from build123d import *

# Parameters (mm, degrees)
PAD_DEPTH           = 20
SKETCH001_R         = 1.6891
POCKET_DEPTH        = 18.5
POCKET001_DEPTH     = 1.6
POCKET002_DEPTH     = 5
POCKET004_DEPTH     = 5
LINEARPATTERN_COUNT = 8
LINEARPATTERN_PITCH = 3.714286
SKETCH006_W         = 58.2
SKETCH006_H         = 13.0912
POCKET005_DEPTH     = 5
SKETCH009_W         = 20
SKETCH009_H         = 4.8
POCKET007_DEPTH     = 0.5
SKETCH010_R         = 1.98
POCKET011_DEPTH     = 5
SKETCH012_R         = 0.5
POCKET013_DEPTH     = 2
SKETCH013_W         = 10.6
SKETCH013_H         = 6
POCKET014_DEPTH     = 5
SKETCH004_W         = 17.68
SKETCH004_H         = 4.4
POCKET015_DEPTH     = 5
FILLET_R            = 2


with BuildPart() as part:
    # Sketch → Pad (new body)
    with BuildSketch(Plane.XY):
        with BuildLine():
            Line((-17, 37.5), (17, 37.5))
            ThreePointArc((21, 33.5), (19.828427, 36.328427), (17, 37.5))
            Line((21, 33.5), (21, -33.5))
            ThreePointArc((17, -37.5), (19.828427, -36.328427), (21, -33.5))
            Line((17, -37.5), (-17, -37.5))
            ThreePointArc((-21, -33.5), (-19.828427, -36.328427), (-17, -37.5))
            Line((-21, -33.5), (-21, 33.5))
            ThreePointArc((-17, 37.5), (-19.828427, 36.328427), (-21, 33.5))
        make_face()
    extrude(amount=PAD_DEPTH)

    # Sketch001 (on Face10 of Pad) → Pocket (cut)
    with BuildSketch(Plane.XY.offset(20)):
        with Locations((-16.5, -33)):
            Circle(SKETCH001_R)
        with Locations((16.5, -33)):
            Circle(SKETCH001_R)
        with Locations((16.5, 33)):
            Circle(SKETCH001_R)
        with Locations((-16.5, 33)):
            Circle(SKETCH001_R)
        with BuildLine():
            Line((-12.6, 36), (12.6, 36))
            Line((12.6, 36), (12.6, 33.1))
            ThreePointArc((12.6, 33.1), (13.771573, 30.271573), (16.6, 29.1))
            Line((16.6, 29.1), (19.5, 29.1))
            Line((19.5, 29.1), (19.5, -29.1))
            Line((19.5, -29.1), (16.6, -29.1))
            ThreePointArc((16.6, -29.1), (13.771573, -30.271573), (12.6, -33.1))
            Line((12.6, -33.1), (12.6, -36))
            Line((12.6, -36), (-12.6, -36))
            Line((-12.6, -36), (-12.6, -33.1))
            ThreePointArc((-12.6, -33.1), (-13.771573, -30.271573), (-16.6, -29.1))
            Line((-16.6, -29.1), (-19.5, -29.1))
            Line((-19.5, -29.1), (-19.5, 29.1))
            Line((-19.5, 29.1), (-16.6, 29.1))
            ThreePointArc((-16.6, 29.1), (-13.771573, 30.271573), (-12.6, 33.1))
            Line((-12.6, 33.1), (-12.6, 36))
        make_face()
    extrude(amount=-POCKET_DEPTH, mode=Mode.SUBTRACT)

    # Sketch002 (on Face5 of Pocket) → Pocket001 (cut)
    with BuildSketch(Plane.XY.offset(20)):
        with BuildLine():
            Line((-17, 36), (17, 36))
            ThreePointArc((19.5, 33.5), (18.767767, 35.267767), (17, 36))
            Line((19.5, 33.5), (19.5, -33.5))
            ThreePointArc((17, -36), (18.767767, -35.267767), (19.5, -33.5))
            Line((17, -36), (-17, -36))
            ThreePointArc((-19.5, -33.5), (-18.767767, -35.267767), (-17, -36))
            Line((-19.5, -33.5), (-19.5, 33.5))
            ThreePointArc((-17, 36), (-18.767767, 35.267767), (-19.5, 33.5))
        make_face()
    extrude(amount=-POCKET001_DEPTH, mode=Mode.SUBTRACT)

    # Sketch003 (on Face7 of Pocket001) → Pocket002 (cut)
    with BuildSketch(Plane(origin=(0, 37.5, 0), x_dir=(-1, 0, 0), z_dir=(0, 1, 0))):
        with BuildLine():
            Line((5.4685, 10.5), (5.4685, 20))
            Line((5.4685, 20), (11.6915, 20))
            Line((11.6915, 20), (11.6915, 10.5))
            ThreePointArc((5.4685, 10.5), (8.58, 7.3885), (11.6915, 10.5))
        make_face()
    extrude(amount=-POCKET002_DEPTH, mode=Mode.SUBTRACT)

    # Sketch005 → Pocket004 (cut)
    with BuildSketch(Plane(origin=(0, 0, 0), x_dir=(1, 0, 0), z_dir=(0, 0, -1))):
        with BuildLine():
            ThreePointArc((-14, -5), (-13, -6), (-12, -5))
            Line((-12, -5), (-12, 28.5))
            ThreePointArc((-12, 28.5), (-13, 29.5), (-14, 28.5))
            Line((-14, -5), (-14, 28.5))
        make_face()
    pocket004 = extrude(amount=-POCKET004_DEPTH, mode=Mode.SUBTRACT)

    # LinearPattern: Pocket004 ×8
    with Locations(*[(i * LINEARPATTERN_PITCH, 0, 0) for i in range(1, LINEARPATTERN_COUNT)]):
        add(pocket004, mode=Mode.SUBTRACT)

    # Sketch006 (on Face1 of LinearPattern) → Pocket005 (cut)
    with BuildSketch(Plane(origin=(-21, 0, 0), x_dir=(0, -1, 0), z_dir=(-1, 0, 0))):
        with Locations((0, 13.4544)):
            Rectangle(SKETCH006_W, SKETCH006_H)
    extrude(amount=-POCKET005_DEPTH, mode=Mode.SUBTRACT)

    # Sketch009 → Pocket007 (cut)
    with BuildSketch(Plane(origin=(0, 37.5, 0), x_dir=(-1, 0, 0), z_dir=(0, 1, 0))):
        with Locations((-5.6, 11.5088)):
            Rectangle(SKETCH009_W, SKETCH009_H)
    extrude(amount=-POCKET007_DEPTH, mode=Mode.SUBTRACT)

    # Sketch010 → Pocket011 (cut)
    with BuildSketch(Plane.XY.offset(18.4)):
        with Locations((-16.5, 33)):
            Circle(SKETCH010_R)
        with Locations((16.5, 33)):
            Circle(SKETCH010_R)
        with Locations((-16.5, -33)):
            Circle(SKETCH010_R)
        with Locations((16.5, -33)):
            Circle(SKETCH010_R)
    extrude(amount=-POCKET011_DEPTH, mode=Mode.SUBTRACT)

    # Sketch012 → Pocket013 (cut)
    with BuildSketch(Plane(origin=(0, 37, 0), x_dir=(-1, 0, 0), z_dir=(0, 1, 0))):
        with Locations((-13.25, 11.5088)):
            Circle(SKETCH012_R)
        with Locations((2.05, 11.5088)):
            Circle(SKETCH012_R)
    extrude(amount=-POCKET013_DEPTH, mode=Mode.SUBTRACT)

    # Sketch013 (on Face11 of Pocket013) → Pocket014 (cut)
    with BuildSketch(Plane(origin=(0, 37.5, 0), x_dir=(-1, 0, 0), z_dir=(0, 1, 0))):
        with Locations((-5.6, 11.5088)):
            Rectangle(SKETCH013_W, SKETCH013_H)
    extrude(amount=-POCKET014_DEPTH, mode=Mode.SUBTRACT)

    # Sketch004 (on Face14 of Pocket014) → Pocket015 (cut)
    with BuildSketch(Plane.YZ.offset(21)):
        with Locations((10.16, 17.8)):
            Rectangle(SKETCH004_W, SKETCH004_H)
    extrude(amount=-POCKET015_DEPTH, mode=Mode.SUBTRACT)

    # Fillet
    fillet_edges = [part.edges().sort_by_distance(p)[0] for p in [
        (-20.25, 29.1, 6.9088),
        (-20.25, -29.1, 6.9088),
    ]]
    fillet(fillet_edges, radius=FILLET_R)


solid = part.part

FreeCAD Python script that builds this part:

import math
import FreeCAD as App
import Part
import Sketcher


def edges_at(feature, points):
    """Names of the edges that pass closest to the given points."""
    edges = feature.Shape.Edges
    near = lambda p: min(range(len(edges)), key=lambda i: edges[i].distToShape(Part.Vertex(*p))[0])
    return sorted({f"Edge{near(p) + 1}" for p in points})

doc = App.newDocument("Part")
body = doc.addObject("PartDesign::Body", "Body")

# Sketch on XY plane
sketch1 = body.newObject("Sketcher::SketchObject", "Sketch")
sketch1.AttachmentSupport = (doc.getObject("XY_Plane"), [""])
sketch1.MapMode = "FlatFace"
sketch1.addGeometry([
    Part.LineSegment(App.Vector(17, 37.5, 0), App.Vector(-17, 37.5, 0)),  # 0
    Part.ArcOfCircle(Part.Circle(App.Vector(-17, 33.5, 0), App.Vector(0, 0, 1), 4), math.radians(90.000006), math.radians(179.999994)),  # 1
    Part.LineSegment(App.Vector(-21, 33.5, 0), App.Vector(-21, -33.5, 0)),  # 2
    Part.ArcOfCircle(Part.Circle(App.Vector(-17, -33.5, 0), App.Vector(0, 0, 1), 4), math.radians(-179.999994), math.radians(-90.000006)),  # 3
    Part.LineSegment(App.Vector(-17, -37.5, 0), App.Vector(17, -37.5, 0)),  # 4
    Part.ArcOfCircle(Part.Circle(App.Vector(17, -33.5, 0), App.Vector(0, 0, 1), 4), math.radians(-89.999994), math.radians(-0.000006)),  # 5
    Part.LineSegment(App.Vector(21, -33.5, 0), App.Vector(21, 33.5, 0)),  # 6
    Part.ArcOfCircle(Part.Circle(App.Vector(17, 33.5, 0), App.Vector(0, 0, 1), 4), math.radians(0.000006), math.radians(89.999994)),  # 7
], False)
sketch1.addConstraint([
    Sketcher.Constraint("Tangent", 0, 2, 1, 1),
    Sketcher.Constraint("Tangent", 1, 2, 2, 1),
    Sketcher.Constraint("Tangent", 2, 2, 3, 1),
    Sketcher.Constraint("Tangent", 3, 2, 4, 1),
    Sketcher.Constraint("Tangent", 4, 2, 5, 1),
    Sketcher.Constraint("Tangent", 5, 2, 6, 1),
    Sketcher.Constraint("Tangent", 6, 2, 7, 1),
    Sketcher.Constraint("Tangent", 7, 2, 0, 1),
    Sketcher.Constraint("Horizontal", 0),
    Sketcher.Constraint("Vertical", 2),
    Sketcher.Constraint("Horizontal", 4),
    Sketcher.Constraint("Vertical", 6),
    Sketcher.Constraint("Equal", 1, 3),
    Sketcher.Constraint("Equal", 3, 5),
    Sketcher.Constraint("Equal", 5, 7),
    Sketcher.Constraint("Symmetric", 1, 3, 5, 3, -1, 1),
    Sketcher.Constraint("Radius", 1, 4.0),
    Sketcher.Constraint("DistanceX", 0, 2, 0, 1, 34.0),
    Sketcher.Constraint("DistanceY", 2, 2, 2, 1, 67.0),
])
pad1 = body.newObject("PartDesign::Pad", "Pad")
pad1.Profile = sketch1
pad1.Length = 20

# Sketch on XY plane
sketch2 = body.newObject("Sketcher::SketchObject", "Sketch001")
sketch2.AttachmentSupport = (doc.getObject("XY_Plane"), [""])
sketch2.MapMode = "FlatFace"
sketch2.AttachmentOffset = App.Placement(App.Vector(0, 0, 20), App.Rotation())
sketch2.addGeometry([
    Part.Circle(App.Vector(-16.5, -33, 0), App.Vector(0, 0, 1), 1.6891),  # 0
    Part.Circle(App.Vector(16.5, -33, 0), App.Vector(0, 0, 1), 1.6891),  # 1
    Part.Circle(App.Vector(16.5, 33, 0), App.Vector(0, 0, 1), 1.6891),  # 2
    Part.Circle(App.Vector(-16.5, 33, 0), App.Vector(0, 0, 1), 1.6891),  # 3
    Part.LineSegment(App.Vector(12.6, 36, 0), App.Vector(-12.6, 36, 0)),  # 4
    Part.LineSegment(App.Vector(-12.6, 36, 0), App.Vector(-12.6, 33.1, 0)),  # 5
    Part.ArcOfCircle(Part.Circle(App.Vector(-16.6, 33.1, 0), App.Vector(0, 0, 1), 4), math.radians(-89.999994), math.radians(-0.000006)),  # 6
    Part.LineSegment(App.Vector(-16.6, 29.1, 0), App.Vector(-19.5, 29.1, 0)),  # 7
    Part.LineSegment(App.Vector(-19.5, 29.1, 0), App.Vector(-19.5, -29.1, 0)),  # 8
    Part.LineSegment(App.Vector(-19.5, -29.1, 0), App.Vector(-16.6, -29.1, 0)),  # 9
    Part.ArcOfCircle(Part.Circle(App.Vector(-16.6, -33.1, 0), App.Vector(0, 0, 1), 4), math.radians(0.000006), math.radians(89.999994)),  # 10
    Part.LineSegment(App.Vector(-12.6, -33.1, 0), App.Vector(-12.6, -36, 0)),  # 11
    Part.LineSegment(App.Vector(-12.6, -36, 0), App.Vector(12.6, -36, 0)),  # 12
    Part.LineSegment(App.Vector(12.6, -36, 0), App.Vector(12.6, -33.1, 0)),  # 13
    Part.ArcOfCircle(Part.Circle(App.Vector(16.6, -33.1, 0), App.Vector(0, 0, 1), 4), math.radians(90.000006), math.radians(179.999994)),  # 14
    Part.LineSegment(App.Vector(16.6, -29.1, 0), App.Vector(19.5, -29.1, 0)),  # 15
    Part.LineSegment(App.Vector(19.5, -29.1, 0), App.Vector(19.5, 29.1, 0)),  # 16
    Part.LineSegment(App.Vector(19.5, 29.1, 0), App.Vector(16.6, 29.1, 0)),  # 17
    Part.ArcOfCircle(Part.Circle(App.Vector(16.6, 33.1, 0), App.Vector(0, 0, 1), 4), math.radians(-179.999994), math.radians(-90.000006)),  # 18
    Part.LineSegment(App.Vector(12.6, 33.1, 0), App.Vector(12.6, 36, 0)),  # 19
], False)
sketch2.addConstraint([
    Sketcher.Constraint("Coincident", 4, 2, 5, 1),
    Sketcher.Constraint("Tangent", 5, 2, 6, 2),
    Sketcher.Constraint("Tangent", 6, 1, 7, 1),
    Sketcher.Constraint("Coincident", 7, 2, 8, 1),
    Sketcher.Constraint("Coincident", 8, 2, 9, 1),
    Sketcher.Constraint("Tangent", 9, 2, 10, 2),
    Sketcher.Constraint("Tangent", 10, 1, 11, 1),
    Sketcher.Constraint("Coincident", 11, 2, 12, 1),
    Sketcher.Constraint("Coincident", 12, 2, 13, 1),
    Sketcher.Constraint("Tangent", 13, 2, 14, 2),
    Sketcher.Constraint("Tangent", 14, 1, 15, 1),
    Sketcher.Constraint("Coincident", 15, 2, 16, 1),
    Sketcher.Constraint("Coincident", 16, 2, 17, 1),
    Sketcher.Constraint("Tangent", 17, 2, 18, 2),
    Sketcher.Constraint("Tangent", 18, 1, 19, 1),
    Sketcher.Constraint("Coincident", 19, 2, 4, 1),
    Sketcher.Constraint("Horizontal", 4),
    Sketcher.Constraint("Vertical", 5),
    Sketcher.Constraint("Horizontal", 7),
    Sketcher.Constraint("Vertical", 8),
    Sketcher.Constraint("Horizontal", 9),
    Sketcher.Constraint("Vertical", 11),
    Sketcher.Constraint("Horizontal", 12),
    Sketcher.Constraint("Vertical", 13),
    Sketcher.Constraint("Horizontal", 15),
    Sketcher.Constraint("Vertical", 16),
    Sketcher.Constraint("Horizontal", 17),
    Sketcher.Constraint("Vertical", 19),
    Sketcher.Constraint("Equal", 0, 1),
    Sketcher.Constraint("Equal", 1, 2),
    Sketcher.Constraint("Equal", 2, 3),
    Sketcher.Constraint("Equal", 6, 10),
    Sketcher.Constraint("Equal", 10, 14),
    Sketcher.Constraint("Equal", 14, 18),
    Sketcher.Constraint("Symmetric", 0, 3, 2, 3, -1, 1),
    Sketcher.Constraint("Symmetric", 1, 3, 3, 3, -1, 1),
    Sketcher.Constraint("Symmetric", 6, 3, 14, 3, -1, 1),
    Sketcher.Constraint("Symmetric", 10, 3, 18, 3, -1, 1),
    Sketcher.Constraint("Symmetric", 0, 3, 1, 3, -2),
    Sketcher.Constraint("Symmetric", 10, 3, 14, 3, -2),
    Sketcher.Constraint("Equal", 9, 15),
    Sketcher.Constraint("Equal", 17, 5),
    Sketcher.Constraint("Equal", 5, 11),
    Sketcher.Constraint("Radius", 6, 4.0),
    Sketcher.Constraint("DistanceX", 4, 2, 4, 1, 25.2),
    Sketcher.Constraint("DistanceX", 7, 2, 7, 1, 2.9),
    Sketcher.Constraint("DistanceY", 8, 2, 8, 1, 58.2),
    Sketcher.Constraint("DistanceY", 0, 3, -1, 1, 33.0),
    Sketcher.Constraint("DistanceX", 0, 3, 1, 3, 33.0),
    Sketcher.Constraint("Diameter", 0, 3.3782),
])
pocket1 = body.newObject("PartDesign::Pocket", "Pocket")
pocket1.Profile = sketch2
pocket1.Length = 18.5

# Sketch on XY plane
sketch3 = body.newObject("Sketcher::SketchObject", "Sketch002")
sketch3.AttachmentSupport = (doc.getObject("XY_Plane"), [""])
sketch3.MapMode = "FlatFace"
sketch3.AttachmentOffset = App.Placement(App.Vector(0, 0, 20), App.Rotation())
sketch3.addGeometry([
    Part.LineSegment(App.Vector(17, 36, 0), App.Vector(-17, 36, 0)),  # 0
    Part.ArcOfCircle(Part.Circle(App.Vector(-17, 33.5, 0), App.Vector(0, 0, 1), 2.5), math.radians(89.999996), math.radians(180.000004)),  # 1
    Part.LineSegment(App.Vector(-19.5, 33.5, 0), App.Vector(-19.5, -33.5, 0)),  # 2
    Part.ArcOfCircle(Part.Circle(App.Vector(-17, -33.5, 0), App.Vector(0, 0, 1), 2.5), math.radians(179.999996), math.radians(270.000004)),  # 3
    Part.LineSegment(App.Vector(-17, -36, 0), App.Vector(17, -36, 0)),  # 4
    Part.ArcOfCircle(Part.Circle(App.Vector(17, -33.5, 0), App.Vector(0, 0, 1), 2.5), math.radians(-90.000004), math.radians(0.000004)),  # 5
    Part.LineSegment(App.Vector(19.5, -33.5, 0), App.Vector(19.5, 33.5, 0)),  # 6
    Part.ArcOfCircle(Part.Circle(App.Vector(17, 33.5, 0), App.Vector(0, 0, 1), 2.5), math.radians(-0.000004), math.radians(90.000004)),  # 7
], False)
sketch3.addConstraint([
    Sketcher.Constraint("Tangent", 0, 2, 1, 1),
    Sketcher.Constraint("Tangent", 1, 2, 2, 1),
    Sketcher.Constraint("Tangent", 2, 2, 3, 1),
    Sketcher.Constraint("Tangent", 3, 2, 4, 1),
    Sketcher.Constraint("Tangent", 4, 2, 5, 1),
    Sketcher.Constraint("Tangent", 5, 2, 6, 1),
    Sketcher.Constraint("Tangent", 6, 2, 7, 1),
    Sketcher.Constraint("Tangent", 7, 2, 0, 1),
    Sketcher.Constraint("Horizontal", 0),
    Sketcher.Constraint("Vertical", 2),
    Sketcher.Constraint("Horizontal", 4),
    Sketcher.Constraint("Vertical", 6),
    Sketcher.Constraint("Equal", 1, 3),
    Sketcher.Constraint("Equal", 3, 5),
    Sketcher.Constraint("Equal", 5, 7),
    Sketcher.Constraint("Symmetric", 1, 3, 5, 3, -1, 1),
    Sketcher.Constraint("Radius", 1, 2.5),
    Sketcher.Constraint("DistanceX", 0, 2, 0, 1, 34.0),
    Sketcher.Constraint("DistanceY", 2, 2, 2, 1, 67.0),
])
pocket2 = body.newObject("PartDesign::Pocket", "Pocket001")
pocket2.Profile = sketch3
pocket2.Length = 1.6

# Sketch on XZ plane
sketch4 = body.newObject("Sketcher::SketchObject", "Sketch003")
sketch4.AttachmentSupport = (doc.getObject("XZ_Plane"), [""])
sketch4.MapMode = "FlatFace"
sketch4.AttachmentOffset = App.Placement(App.Vector(0, 0, -37.5), App.Rotation())
sketch4.addGeometry([
    Part.LineSegment(App.Vector(-5.4685, 20, 0), App.Vector(-5.4685, 10.5, 0)),
    Part.ArcOfCircle(Part.Circle(App.Vector(-8.58, 10.5, 0), App.Vector(0, 0, 1), 3.1115), math.radians(180), math.radians(360)),
    Part.LineSegment(App.Vector(-11.6915, 10.5, 0), App.Vector(-11.6915, 20, 0)),
    Part.LineSegment(App.Vector(-11.6915, 20, 0), App.Vector(-5.4685, 20, 0)),
], False)
sketch4.addConstraint([
    Sketcher.Constraint("Tangent", 0, 2, 1, 2),
    Sketcher.Constraint("Tangent", 1, 1, 2, 1),
    Sketcher.Constraint("Coincident", 2, 2, 3, 1),
    Sketcher.Constraint("Coincident", 3, 2, 0, 1),
    Sketcher.Constraint("Vertical", 0),
    Sketcher.Constraint("Vertical", 2),
    Sketcher.Constraint("Horizontal", 3),
    Sketcher.Constraint("DistanceY", 0, 2, 0, 1, 9.5),
    Sketcher.Constraint("DistanceY", -1, 1, 2, 2, 20.0),
    Sketcher.Constraint("Radius", 1, 3.1115),
    Sketcher.Constraint("DistanceX", 1, 3, -1, 1, 8.58),
])
pocket3 = body.newObject("PartDesign::Pocket", "Pocket002")
pocket3.Profile = sketch4
pocket3.Length = 5
pocket3.Reversed = True

# Sketch on XY plane
sketch5 = body.newObject("Sketcher::SketchObject", "Sketch004")
sketch5.AttachmentSupport = (doc.getObject("XY_Plane"), [""])
sketch5.MapMode = "FlatFace"
sketch5.addGeometry([
    Part.ArcOfCircle(Part.Circle(App.Vector(-13, 5, 0), App.Vector(0, 0, 1), 1), math.radians(0), math.radians(180)),
    Part.LineSegment(App.Vector(-12, 5, 0), App.Vector(-12, -28.5, 0)),
    Part.ArcOfCircle(Part.Circle(App.Vector(-13, -28.5, 0), App.Vector(0, 0, 1), 1), math.radians(180), math.radians(360)),
    Part.LineSegment(App.Vector(-14, -28.5, 0), App.Vector(-14, 5, 0)),
], False)
sketch5.addConstraint([
    Sketcher.Constraint("Tangent", 0, 1, 1, 1),
    Sketcher.Constraint("Tangent", 1, 2, 2, 2),
    Sketcher.Constraint("Tangent", 2, 1, 3, 1),
    Sketcher.Constraint("Tangent", 3, 2, 0, 2),
    Sketcher.Constraint("Vertical", 1),
    Sketcher.Constraint("Vertical", 3),
    Sketcher.Constraint("Radius", 0, 1.0),
    Sketcher.Constraint("DistanceY", 1, 2, 1, 1, 33.5),
    Sketcher.Constraint("DistanceX", 0, 3, -1, 1, 13.0),
    Sketcher.Constraint("DistanceY", -1, 1, 0, 3, 5.0),
])
pocket4 = body.newObject("PartDesign::Pocket", "Pocket003")
pocket4.Profile = sketch5
pocket4.Length = 5
pocket4.Reversed = True
doc.recompute()

linearpattern = body.newObject("PartDesign::LinearPattern", "LinearPattern")
linearpattern.Originals = [pocket4]
linearpattern.Direction = (doc.getObject("X_Axis"), [""])
linearpattern.Mode = "offset"
linearpattern.Offset = 3.714286
linearpattern.Occurrences = 8
body.Tip = linearpattern

# Sketch on YZ plane
sketch6 = body.newObject("Sketcher::SketchObject", "Sketch005")
sketch6.AttachmentSupport = (doc.getObject("YZ_Plane"), [""])
sketch6.MapMode = "FlatFace"
sketch6.AttachmentOffset = App.Placement(App.Vector(0, 0, -21), App.Rotation())
sketch6.addGeometry([
    Part.LineSegment(App.Vector(29.1, 20, 0), App.Vector(29.1, 6.9088, 0)),
    Part.LineSegment(App.Vector(29.1, 6.9088, 0), App.Vector(-29.1, 6.9088, 0)),
    Part.LineSegment(App.Vector(-29.1, 6.9088, 0), App.Vector(-29.1, 20, 0)),
    Part.LineSegment(App.Vector(-29.1, 20, 0), App.Vector(29.1, 20, 0)),
], False)
sketch6.addConstraint([
    Sketcher.Constraint("Coincident", 0, 2, 1, 1),
    Sketcher.Constraint("Coincident", 1, 2, 2, 1),
    Sketcher.Constraint("Coincident", 2, 2, 3, 1),
    Sketcher.Constraint("Coincident", 3, 2, 0, 1),
    Sketcher.Constraint("Vertical", 0),
    Sketcher.Constraint("Horizontal", 1),
    Sketcher.Constraint("Vertical", 2),
    Sketcher.Constraint("Horizontal", 3),
    Sketcher.Constraint("DistanceX", 1, 2, 1, 1, 58.2),
    Sketcher.Constraint("DistanceY", -1, 1, 2, 2, 20.0),
    Sketcher.Constraint("DistanceX", -1, 1, 0, 2, 29.1),
    Sketcher.Constraint("DistanceY", 0, 2, 0, 1, 13.0912),
])
pocket5 = body.newObject("PartDesign::Pocket", "Pocket004")
pocket5.Profile = sketch6
pocket5.Length = 5
pocket5.Reversed = True

# Sketch on XZ plane
sketch7 = body.newObject("Sketcher::SketchObject", "Sketch006")
sketch7.AttachmentSupport = (doc.getObject("XZ_Plane"), [""])
sketch7.MapMode = "FlatFace"
sketch7.AttachmentOffset = App.Placement(App.Vector(0, 0, -37.5), App.Rotation())
sketch7.addGeometry([
    Part.LineSegment(App.Vector(15.6, 13.9088, 0), App.Vector(15.6, 9.1088, 0)),
    Part.LineSegment(App.Vector(15.6, 9.1088, 0), App.Vector(-4.4, 9.1088, 0)),
    Part.LineSegment(App.Vector(-4.4, 9.1088, 0), App.Vector(-4.4, 13.9088, 0)),
    Part.LineSegment(App.Vector(-4.4, 13.9088, 0), App.Vector(15.6, 13.9088, 0)),
], False)
sketch7.addConstraint([
    Sketcher.Constraint("Coincident", 0, 2, 1, 1),
    Sketcher.Constraint("Coincident", 1, 2, 2, 1),
    Sketcher.Constraint("Coincident", 2, 2, 3, 1),
    Sketcher.Constraint("Coincident", 3, 2, 0, 1),
    Sketcher.Constraint("Vertical", 0),
    Sketcher.Constraint("Horizontal", 1),
    Sketcher.Constraint("Vertical", 2),
    Sketcher.Constraint("Horizontal", 3),
    Sketcher.Constraint("DistanceX", 1, 2, 1, 1, 20.0),
    Sketcher.Constraint("DistanceY", 0, 2, 0, 1, 4.8),
    Sketcher.Constraint("DistanceX", -1, 1, 0, 2, 15.6),
    Sketcher.Constraint("DistanceY", -1, 1, 0, 2, 9.1088),
])
pocket6 = body.newObject("PartDesign::Pocket", "Pocket005")
pocket6.Profile = sketch7
pocket6.Length = 0.5
pocket6.Reversed = True

# Sketch on XY plane
sketch8 = body.newObject("Sketcher::SketchObject", "Sketch007")
sketch8.AttachmentSupport = (doc.getObject("XY_Plane"), [""])
sketch8.MapMode = "FlatFace"
sketch8.AttachmentOffset = App.Placement(App.Vector(0, 0, 18.4), App.Rotation())
sketch8.addGeometry([
    Part.Circle(App.Vector(-16.5, 33, 0), App.Vector(0, 0, 1), 1.98),
    Part.Circle(App.Vector(16.5, 33, 0), App.Vector(0, 0, 1), 1.98),
    Part.Circle(App.Vector(-16.5, -33, 0), App.Vector(0, 0, 1), 1.98),
    Part.Circle(App.Vector(16.5, -33, 0), App.Vector(0, 0, 1), 1.98),
], False)
sketch8.addConstraint([
    Sketcher.Constraint("Equal", 0, 1),
    Sketcher.Constraint("Equal", 1, 2),
    Sketcher.Constraint("Equal", 2, 3),
    Sketcher.Constraint("Symmetric", 1, 3, 2, 3, -1, 1),
    Sketcher.Constraint("Symmetric", 0, 3, 3, 3, -1, 1),
    Sketcher.Constraint("Symmetric", 0, 3, 1, 3, -2),
    Sketcher.Constraint("Diameter", 0, 3.96),
    Sketcher.Constraint("DistanceY", -1, 1, 0, 3, 33.0),
    Sketcher.Constraint("DistanceX", 0, 3, 1, 3, 33.0),
])
pocket7 = body.newObject("PartDesign::Pocket", "Pocket006")
pocket7.Profile = sketch8
pocket7.Length = 5

# Sketch on XZ plane
sketch9 = body.newObject("Sketcher::SketchObject", "Sketch008")
sketch9.AttachmentSupport = (doc.getObject("XZ_Plane"), [""])
sketch9.MapMode = "FlatFace"
sketch9.AttachmentOffset = App.Placement(App.Vector(0, 0, -37), App.Rotation())
sketch9.addGeometry([
    Part.Circle(App.Vector(13.25, 11.5088, 0), App.Vector(0, 0, 1), 0.5),
    Part.Circle(App.Vector(-2.05, 11.5088, 0), App.Vector(0, 0, 1), 0.5),
], False)
sketch9.addConstraint([
    Sketcher.Constraint("Equal", 0, 1),
    Sketcher.Constraint("Horizontal", 0, 3, 1, 3),
    Sketcher.Constraint("Diameter", 0, 1.0),
    Sketcher.Constraint("DistanceX", 1, 3, 0, 3, 15.3),
    Sketcher.Constraint("DistanceX", -1, 1, 0, 3, 13.25),
    Sketcher.Constraint("DistanceY", -1, 1, 0, 3, 11.5088),
])
pocket8 = body.newObject("PartDesign::Pocket", "Pocket007")
pocket8.Profile = sketch9
pocket8.Length = 2
pocket8.Reversed = True

# Sketch on XZ plane
sketch10 = body.newObject("Sketcher::SketchObject", "Sketch009")
sketch10.AttachmentSupport = (doc.getObject("XZ_Plane"), [""])
sketch10.MapMode = "FlatFace"
sketch10.AttachmentOffset = App.Placement(App.Vector(0, 0, -37.5), App.Rotation())
sketch10.addGeometry([
    Part.LineSegment(App.Vector(10.9, 14.5088, 0), App.Vector(10.9, 8.5088, 0)),
    Part.LineSegment(App.Vector(10.9, 8.5088, 0), App.Vector(0.3, 8.5088, 0)),
    Part.LineSegment(App.Vector(0.3, 8.5088, 0), App.Vector(0.3, 14.5088, 0)),
    Part.LineSegment(App.Vector(0.3, 14.5088, 0), App.Vector(10.9, 14.5088, 0)),
], False)
sketch10.addConstraint([
    Sketcher.Constraint("Coincident", 0, 2, 1, 1),
    Sketcher.Constraint("Coincident", 1, 2, 2, 1),
    Sketcher.Constraint("Coincident", 2, 2, 3, 1),
    Sketcher.Constraint("Coincident", 3, 2, 0, 1),
    Sketcher.Constraint("Vertical", 0),
    Sketcher.Constraint("Horizontal", 1),
    Sketcher.Constraint("Vertical", 2),
    Sketcher.Constraint("Horizontal", 3),
    Sketcher.Constraint("DistanceY", 0, 2, 0, 1, 6.0),
    Sketcher.Constraint("DistanceX", 1, 2, 1, 1, 10.6),
    Sketcher.Constraint("DistanceX", -1, 1, 0, 2, 10.9),
    Sketcher.Constraint("DistanceY", -1, 1, 0, 2, 8.5088),
])
pocket9 = body.newObject("PartDesign::Pocket", "Pocket008")
pocket9.Profile = sketch10
pocket9.Length = 5
pocket9.Reversed = True

# Sketch on YZ plane
sketch11 = body.newObject("Sketcher::SketchObject", "Sketch010")
sketch11.AttachmentSupport = (doc.getObject("YZ_Plane"), [""])
sketch11.MapMode = "FlatFace"
sketch11.AttachmentOffset = App.Placement(App.Vector(0, 0, 21), App.Rotation())
sketch11.addGeometry([
    Part.LineSegment(App.Vector(1.32, 20, 0), App.Vector(1.32, 15.6, 0)),
    Part.LineSegment(App.Vector(1.32, 15.6, 0), App.Vector(19, 15.6, 0)),
    Part.LineSegment(App.Vector(19, 15.6, 0), App.Vector(19, 20, 0)),
    Part.LineSegment(App.Vector(19, 20, 0), App.Vector(1.32, 20, 0)),
], False)
sketch11.addConstraint([
    Sketcher.Constraint("Coincident", 0, 2, 1, 1),
    Sketcher.Constraint("Coincident", 1, 2, 2, 1),
    Sketcher.Constraint("Coincident", 2, 2, 3, 1),
    Sketcher.Constraint("Coincident", 3, 2, 0, 1),
    Sketcher.Constraint("Vertical", 0),
    Sketcher.Constraint("Horizontal", 1),
    Sketcher.Constraint("Vertical", 2),
    Sketcher.Constraint("Horizontal", 3),
    Sketcher.Constraint("DistanceY", 0, 2, 0, 1, 4.4),
    Sketcher.Constraint("DistanceX", -1, 1, 1, 2, 19.0),
    Sketcher.Constraint("DistanceY", -1, 1, 2, 2, 20.0),
    Sketcher.Constraint("DistanceX", 1, 1, 1, 2, 17.68),
])
pocket10 = body.newObject("PartDesign::Pocket", "Pocket009")
pocket10.Profile = sketch11
pocket10.Length = 5
doc.recompute()

fillet = body.newObject("PartDesign::Fillet", "Fillet")
fillet.Base = (pocket10, edges_at(pocket10, [(-20.25, 29.1, 6.909), (-20.25, -29.1, 6.909)]))
fillet.Radius = 2

doc.recompute()
